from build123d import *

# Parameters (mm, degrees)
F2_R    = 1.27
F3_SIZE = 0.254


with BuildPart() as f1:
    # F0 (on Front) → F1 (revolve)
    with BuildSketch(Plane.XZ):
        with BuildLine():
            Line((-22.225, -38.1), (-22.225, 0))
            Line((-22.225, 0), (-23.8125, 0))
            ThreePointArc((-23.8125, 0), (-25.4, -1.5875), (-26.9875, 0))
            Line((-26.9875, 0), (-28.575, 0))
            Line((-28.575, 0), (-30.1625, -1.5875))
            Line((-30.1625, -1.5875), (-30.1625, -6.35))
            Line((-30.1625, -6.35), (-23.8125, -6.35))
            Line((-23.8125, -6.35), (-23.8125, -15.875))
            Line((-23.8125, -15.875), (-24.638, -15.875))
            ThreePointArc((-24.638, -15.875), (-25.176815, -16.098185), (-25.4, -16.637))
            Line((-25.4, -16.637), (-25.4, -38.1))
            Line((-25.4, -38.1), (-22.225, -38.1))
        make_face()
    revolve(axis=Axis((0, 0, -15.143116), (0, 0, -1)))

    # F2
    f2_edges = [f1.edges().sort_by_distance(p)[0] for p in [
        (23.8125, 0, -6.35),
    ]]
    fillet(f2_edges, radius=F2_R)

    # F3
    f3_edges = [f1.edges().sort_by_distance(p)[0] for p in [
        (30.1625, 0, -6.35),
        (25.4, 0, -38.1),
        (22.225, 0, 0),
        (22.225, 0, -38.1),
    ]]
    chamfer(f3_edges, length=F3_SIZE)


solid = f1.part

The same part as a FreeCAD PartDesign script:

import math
import FreeCAD as App
import Part
import Sketcher
Q = App.Units.Quantity


def edges_at(feature, points):
    """Names of the edges that pass closest to the given points."""
    edges = feature.Shape.Edges
    near = lambda p: min(range(len(edges)), key=lambda i: edges[i].distToShape(Part.Vertex(*p))[0])
    return sorted({f"Edge{near(p) + 1}" for p in points})

doc = App.newDocument("Part")
body = doc.addObject("PartDesign::Body", "Body")

# Sketch on XZ plane
sketch1 = body.newObject("Sketcher::SketchObject", "Sketch")
sketch1.AttachmentSupport = (doc.getObject("XZ_Plane"), [""])
sketch1.MapMode = "FlatFace"
sketch1.addGeometry([
    Part.LineSegment(App.Vector(-22.2, -38.1, 0), App.Vector(-22.2, 0, 0)),  # 0
    Part.LineSegment(App.Vector(-22.2, 0, 0), App.Vector(-23.8, 0, 0)),  # 1
    Part.ArcOfCircle(Part.Circle(App.Vector(-25.4, 0, 0), App.Vector(0, 0, 1), 1.6), math.radians(180), math.radians(360)),  # 2
    Part.LineSegment(App.Vector(-27, 0, 0), App.Vector(-28.6, 0, 0)),  # 3
    Part.LineSegment(App.Vector(-28.6, 0, 0), App.Vector(-30.2, -1.6, 0)),  # 4
    Part.LineSegment(App.Vector(-30.2, -1.6, 0), App.Vector(-30.2, -6.3, 0)),  # 5
    Part.LineSegment(App.Vector(-30.2, -6.3, 0), App.Vector(-23.8, -6.3, 0)),  # 6
    Part.LineSegment(App.Vector(-23.8, -6.3, 0), App.Vector(-23.8, -15.9, 0)),  # 7
    Part.LineSegment(App.Vector(-23.8, -15.9, 0), App.Vector(-24.6, -15.9, 0)),  # 8
    Part.ArcOfCircle(Part.Circle(App.Vector(-24.6, -16.6, 0), App.Vector(0, 0, 1), 0.8), math.radians(90), math.radians(180)),  # 9
    Part.LineSegment(App.Vector(-25.4, -16.6, 0), App.Vector(-25.4, -38.1, 0)),  # 10
    Part.LineSegment(App.Vector(-25.4, -38.1, 0), App.Vector(-22.2, -38.1, 0)),  # 11
], False)
sketch1.addConstraint([
    Sketcher.Constraint("Coincident", 0, 2, 1, 1),
    Sketcher.Constraint("Coincident", 1, 2, 2, 2),
    Sketcher.Constraint("Coincident", 2, 1, 3, 1),
    Sketcher.Constraint("Coincident", 3, 2, 4, 1),
    Sketcher.Constraint("Coincident", 4, 2, 5, 1),
    Sketcher.Constraint("Coincident", 5, 2, 6, 1),
    Sketcher.Constraint("Coincident", 6, 2, 7, 1),
    Sketcher.Constraint("Coincident", 7, 2, 8, 1),
    Sketcher.Constraint("Tangent", 8, 2, 9, 1),
    Sketcher.Constraint("Tangent", 9, 2, 10, 1),
    Sketcher.Constraint("Coincident", 10, 2, 11, 1),
    Sketcher.Constraint("Coincident", 11, 2, 0, 1),
    Sketcher.Constraint("Vertical", 0),
    Sketcher.Constraint("Horizontal", 1),
    Sketcher.Constraint("Horizontal", 3),
    Sketcher.Constraint("Vertical", 5),
    Sketcher.Constraint("Horizontal", 6),
    Sketcher.Constraint("Vertical", 7),
    Sketcher.Constraint("Horizontal", 8),
    Sketcher.Constraint("Vertical", 10),
    Sketcher.Constraint("Horizontal", 11),
    Sketcher.Constraint("PointOnObject", 2, 3, -1),
    Sketcher.Constraint("PointOnObject", 0, 2, -1),
    Sketcher.Constraint("PointOnObject", 2, 1, -1),
    Sketcher.Constraint("Vertical", 1, 2, 6, 2),
    Sketcher.Constraint("Vertical", 2, 3, 9, 2),
    Sketcher.Constraint("Equal", 1, 3),
    Sketcher.Constraint("Radius", 9, Q("0.03 in")),
    Sketcher.Constraint("DistanceY", 0, 1, 0, 2, Q("1.5 in")),
    Sketcher.Constraint("DistanceX", 2, 3, -1, 1, Q("1 in")),
    Sketcher.Constraint("Angle", 4, Q("-135 deg")),
    Sketcher.Constraint("Radius", 2, Q("0.0625 in")),
    Sketcher.Constraint("DistanceX", 6, 1, 6, 2, Q("0.25 in")),
    Sketcher.Constraint("DistanceX", 1, 2, 1, 1, Q("0.0625 in")),
    Sketcher.Constraint("DistanceY", 5, 2, 5, 1, Q("0.1875 in")),
    Sketcher.Constraint("DistanceY", 7, 2, 7, 1, Q("0.375 in")),
])
revolution = body.newObject("PartDesign::Revolution", "Revolution")
revolution.Profile = sketch1
revolution.ReferenceAxis = (sketch1, ["V_Axis"])
revolution.Angle = 360
doc.recompute()

fillet = body.newObject("PartDesign::Fillet", "Fillet")
fillet.Base = (revolution, edges_at(revolution, [(23.812, 0, -6.35)]))
fillet.Radius = Q("0.05 in")
doc.recompute()

chamfer = body.newObject("PartDesign::Chamfer", "Chamfer")
chamfer.Base = (fillet, edges_at(fillet, [
    (30.163, 0, -6.35),
    (25.4, 0, -38.1),
    (22.225, 0, 0),
    (22.225, 0, -38.1),
]))
chamfer.Size = Q("0.01 in")

doc.recompute()
